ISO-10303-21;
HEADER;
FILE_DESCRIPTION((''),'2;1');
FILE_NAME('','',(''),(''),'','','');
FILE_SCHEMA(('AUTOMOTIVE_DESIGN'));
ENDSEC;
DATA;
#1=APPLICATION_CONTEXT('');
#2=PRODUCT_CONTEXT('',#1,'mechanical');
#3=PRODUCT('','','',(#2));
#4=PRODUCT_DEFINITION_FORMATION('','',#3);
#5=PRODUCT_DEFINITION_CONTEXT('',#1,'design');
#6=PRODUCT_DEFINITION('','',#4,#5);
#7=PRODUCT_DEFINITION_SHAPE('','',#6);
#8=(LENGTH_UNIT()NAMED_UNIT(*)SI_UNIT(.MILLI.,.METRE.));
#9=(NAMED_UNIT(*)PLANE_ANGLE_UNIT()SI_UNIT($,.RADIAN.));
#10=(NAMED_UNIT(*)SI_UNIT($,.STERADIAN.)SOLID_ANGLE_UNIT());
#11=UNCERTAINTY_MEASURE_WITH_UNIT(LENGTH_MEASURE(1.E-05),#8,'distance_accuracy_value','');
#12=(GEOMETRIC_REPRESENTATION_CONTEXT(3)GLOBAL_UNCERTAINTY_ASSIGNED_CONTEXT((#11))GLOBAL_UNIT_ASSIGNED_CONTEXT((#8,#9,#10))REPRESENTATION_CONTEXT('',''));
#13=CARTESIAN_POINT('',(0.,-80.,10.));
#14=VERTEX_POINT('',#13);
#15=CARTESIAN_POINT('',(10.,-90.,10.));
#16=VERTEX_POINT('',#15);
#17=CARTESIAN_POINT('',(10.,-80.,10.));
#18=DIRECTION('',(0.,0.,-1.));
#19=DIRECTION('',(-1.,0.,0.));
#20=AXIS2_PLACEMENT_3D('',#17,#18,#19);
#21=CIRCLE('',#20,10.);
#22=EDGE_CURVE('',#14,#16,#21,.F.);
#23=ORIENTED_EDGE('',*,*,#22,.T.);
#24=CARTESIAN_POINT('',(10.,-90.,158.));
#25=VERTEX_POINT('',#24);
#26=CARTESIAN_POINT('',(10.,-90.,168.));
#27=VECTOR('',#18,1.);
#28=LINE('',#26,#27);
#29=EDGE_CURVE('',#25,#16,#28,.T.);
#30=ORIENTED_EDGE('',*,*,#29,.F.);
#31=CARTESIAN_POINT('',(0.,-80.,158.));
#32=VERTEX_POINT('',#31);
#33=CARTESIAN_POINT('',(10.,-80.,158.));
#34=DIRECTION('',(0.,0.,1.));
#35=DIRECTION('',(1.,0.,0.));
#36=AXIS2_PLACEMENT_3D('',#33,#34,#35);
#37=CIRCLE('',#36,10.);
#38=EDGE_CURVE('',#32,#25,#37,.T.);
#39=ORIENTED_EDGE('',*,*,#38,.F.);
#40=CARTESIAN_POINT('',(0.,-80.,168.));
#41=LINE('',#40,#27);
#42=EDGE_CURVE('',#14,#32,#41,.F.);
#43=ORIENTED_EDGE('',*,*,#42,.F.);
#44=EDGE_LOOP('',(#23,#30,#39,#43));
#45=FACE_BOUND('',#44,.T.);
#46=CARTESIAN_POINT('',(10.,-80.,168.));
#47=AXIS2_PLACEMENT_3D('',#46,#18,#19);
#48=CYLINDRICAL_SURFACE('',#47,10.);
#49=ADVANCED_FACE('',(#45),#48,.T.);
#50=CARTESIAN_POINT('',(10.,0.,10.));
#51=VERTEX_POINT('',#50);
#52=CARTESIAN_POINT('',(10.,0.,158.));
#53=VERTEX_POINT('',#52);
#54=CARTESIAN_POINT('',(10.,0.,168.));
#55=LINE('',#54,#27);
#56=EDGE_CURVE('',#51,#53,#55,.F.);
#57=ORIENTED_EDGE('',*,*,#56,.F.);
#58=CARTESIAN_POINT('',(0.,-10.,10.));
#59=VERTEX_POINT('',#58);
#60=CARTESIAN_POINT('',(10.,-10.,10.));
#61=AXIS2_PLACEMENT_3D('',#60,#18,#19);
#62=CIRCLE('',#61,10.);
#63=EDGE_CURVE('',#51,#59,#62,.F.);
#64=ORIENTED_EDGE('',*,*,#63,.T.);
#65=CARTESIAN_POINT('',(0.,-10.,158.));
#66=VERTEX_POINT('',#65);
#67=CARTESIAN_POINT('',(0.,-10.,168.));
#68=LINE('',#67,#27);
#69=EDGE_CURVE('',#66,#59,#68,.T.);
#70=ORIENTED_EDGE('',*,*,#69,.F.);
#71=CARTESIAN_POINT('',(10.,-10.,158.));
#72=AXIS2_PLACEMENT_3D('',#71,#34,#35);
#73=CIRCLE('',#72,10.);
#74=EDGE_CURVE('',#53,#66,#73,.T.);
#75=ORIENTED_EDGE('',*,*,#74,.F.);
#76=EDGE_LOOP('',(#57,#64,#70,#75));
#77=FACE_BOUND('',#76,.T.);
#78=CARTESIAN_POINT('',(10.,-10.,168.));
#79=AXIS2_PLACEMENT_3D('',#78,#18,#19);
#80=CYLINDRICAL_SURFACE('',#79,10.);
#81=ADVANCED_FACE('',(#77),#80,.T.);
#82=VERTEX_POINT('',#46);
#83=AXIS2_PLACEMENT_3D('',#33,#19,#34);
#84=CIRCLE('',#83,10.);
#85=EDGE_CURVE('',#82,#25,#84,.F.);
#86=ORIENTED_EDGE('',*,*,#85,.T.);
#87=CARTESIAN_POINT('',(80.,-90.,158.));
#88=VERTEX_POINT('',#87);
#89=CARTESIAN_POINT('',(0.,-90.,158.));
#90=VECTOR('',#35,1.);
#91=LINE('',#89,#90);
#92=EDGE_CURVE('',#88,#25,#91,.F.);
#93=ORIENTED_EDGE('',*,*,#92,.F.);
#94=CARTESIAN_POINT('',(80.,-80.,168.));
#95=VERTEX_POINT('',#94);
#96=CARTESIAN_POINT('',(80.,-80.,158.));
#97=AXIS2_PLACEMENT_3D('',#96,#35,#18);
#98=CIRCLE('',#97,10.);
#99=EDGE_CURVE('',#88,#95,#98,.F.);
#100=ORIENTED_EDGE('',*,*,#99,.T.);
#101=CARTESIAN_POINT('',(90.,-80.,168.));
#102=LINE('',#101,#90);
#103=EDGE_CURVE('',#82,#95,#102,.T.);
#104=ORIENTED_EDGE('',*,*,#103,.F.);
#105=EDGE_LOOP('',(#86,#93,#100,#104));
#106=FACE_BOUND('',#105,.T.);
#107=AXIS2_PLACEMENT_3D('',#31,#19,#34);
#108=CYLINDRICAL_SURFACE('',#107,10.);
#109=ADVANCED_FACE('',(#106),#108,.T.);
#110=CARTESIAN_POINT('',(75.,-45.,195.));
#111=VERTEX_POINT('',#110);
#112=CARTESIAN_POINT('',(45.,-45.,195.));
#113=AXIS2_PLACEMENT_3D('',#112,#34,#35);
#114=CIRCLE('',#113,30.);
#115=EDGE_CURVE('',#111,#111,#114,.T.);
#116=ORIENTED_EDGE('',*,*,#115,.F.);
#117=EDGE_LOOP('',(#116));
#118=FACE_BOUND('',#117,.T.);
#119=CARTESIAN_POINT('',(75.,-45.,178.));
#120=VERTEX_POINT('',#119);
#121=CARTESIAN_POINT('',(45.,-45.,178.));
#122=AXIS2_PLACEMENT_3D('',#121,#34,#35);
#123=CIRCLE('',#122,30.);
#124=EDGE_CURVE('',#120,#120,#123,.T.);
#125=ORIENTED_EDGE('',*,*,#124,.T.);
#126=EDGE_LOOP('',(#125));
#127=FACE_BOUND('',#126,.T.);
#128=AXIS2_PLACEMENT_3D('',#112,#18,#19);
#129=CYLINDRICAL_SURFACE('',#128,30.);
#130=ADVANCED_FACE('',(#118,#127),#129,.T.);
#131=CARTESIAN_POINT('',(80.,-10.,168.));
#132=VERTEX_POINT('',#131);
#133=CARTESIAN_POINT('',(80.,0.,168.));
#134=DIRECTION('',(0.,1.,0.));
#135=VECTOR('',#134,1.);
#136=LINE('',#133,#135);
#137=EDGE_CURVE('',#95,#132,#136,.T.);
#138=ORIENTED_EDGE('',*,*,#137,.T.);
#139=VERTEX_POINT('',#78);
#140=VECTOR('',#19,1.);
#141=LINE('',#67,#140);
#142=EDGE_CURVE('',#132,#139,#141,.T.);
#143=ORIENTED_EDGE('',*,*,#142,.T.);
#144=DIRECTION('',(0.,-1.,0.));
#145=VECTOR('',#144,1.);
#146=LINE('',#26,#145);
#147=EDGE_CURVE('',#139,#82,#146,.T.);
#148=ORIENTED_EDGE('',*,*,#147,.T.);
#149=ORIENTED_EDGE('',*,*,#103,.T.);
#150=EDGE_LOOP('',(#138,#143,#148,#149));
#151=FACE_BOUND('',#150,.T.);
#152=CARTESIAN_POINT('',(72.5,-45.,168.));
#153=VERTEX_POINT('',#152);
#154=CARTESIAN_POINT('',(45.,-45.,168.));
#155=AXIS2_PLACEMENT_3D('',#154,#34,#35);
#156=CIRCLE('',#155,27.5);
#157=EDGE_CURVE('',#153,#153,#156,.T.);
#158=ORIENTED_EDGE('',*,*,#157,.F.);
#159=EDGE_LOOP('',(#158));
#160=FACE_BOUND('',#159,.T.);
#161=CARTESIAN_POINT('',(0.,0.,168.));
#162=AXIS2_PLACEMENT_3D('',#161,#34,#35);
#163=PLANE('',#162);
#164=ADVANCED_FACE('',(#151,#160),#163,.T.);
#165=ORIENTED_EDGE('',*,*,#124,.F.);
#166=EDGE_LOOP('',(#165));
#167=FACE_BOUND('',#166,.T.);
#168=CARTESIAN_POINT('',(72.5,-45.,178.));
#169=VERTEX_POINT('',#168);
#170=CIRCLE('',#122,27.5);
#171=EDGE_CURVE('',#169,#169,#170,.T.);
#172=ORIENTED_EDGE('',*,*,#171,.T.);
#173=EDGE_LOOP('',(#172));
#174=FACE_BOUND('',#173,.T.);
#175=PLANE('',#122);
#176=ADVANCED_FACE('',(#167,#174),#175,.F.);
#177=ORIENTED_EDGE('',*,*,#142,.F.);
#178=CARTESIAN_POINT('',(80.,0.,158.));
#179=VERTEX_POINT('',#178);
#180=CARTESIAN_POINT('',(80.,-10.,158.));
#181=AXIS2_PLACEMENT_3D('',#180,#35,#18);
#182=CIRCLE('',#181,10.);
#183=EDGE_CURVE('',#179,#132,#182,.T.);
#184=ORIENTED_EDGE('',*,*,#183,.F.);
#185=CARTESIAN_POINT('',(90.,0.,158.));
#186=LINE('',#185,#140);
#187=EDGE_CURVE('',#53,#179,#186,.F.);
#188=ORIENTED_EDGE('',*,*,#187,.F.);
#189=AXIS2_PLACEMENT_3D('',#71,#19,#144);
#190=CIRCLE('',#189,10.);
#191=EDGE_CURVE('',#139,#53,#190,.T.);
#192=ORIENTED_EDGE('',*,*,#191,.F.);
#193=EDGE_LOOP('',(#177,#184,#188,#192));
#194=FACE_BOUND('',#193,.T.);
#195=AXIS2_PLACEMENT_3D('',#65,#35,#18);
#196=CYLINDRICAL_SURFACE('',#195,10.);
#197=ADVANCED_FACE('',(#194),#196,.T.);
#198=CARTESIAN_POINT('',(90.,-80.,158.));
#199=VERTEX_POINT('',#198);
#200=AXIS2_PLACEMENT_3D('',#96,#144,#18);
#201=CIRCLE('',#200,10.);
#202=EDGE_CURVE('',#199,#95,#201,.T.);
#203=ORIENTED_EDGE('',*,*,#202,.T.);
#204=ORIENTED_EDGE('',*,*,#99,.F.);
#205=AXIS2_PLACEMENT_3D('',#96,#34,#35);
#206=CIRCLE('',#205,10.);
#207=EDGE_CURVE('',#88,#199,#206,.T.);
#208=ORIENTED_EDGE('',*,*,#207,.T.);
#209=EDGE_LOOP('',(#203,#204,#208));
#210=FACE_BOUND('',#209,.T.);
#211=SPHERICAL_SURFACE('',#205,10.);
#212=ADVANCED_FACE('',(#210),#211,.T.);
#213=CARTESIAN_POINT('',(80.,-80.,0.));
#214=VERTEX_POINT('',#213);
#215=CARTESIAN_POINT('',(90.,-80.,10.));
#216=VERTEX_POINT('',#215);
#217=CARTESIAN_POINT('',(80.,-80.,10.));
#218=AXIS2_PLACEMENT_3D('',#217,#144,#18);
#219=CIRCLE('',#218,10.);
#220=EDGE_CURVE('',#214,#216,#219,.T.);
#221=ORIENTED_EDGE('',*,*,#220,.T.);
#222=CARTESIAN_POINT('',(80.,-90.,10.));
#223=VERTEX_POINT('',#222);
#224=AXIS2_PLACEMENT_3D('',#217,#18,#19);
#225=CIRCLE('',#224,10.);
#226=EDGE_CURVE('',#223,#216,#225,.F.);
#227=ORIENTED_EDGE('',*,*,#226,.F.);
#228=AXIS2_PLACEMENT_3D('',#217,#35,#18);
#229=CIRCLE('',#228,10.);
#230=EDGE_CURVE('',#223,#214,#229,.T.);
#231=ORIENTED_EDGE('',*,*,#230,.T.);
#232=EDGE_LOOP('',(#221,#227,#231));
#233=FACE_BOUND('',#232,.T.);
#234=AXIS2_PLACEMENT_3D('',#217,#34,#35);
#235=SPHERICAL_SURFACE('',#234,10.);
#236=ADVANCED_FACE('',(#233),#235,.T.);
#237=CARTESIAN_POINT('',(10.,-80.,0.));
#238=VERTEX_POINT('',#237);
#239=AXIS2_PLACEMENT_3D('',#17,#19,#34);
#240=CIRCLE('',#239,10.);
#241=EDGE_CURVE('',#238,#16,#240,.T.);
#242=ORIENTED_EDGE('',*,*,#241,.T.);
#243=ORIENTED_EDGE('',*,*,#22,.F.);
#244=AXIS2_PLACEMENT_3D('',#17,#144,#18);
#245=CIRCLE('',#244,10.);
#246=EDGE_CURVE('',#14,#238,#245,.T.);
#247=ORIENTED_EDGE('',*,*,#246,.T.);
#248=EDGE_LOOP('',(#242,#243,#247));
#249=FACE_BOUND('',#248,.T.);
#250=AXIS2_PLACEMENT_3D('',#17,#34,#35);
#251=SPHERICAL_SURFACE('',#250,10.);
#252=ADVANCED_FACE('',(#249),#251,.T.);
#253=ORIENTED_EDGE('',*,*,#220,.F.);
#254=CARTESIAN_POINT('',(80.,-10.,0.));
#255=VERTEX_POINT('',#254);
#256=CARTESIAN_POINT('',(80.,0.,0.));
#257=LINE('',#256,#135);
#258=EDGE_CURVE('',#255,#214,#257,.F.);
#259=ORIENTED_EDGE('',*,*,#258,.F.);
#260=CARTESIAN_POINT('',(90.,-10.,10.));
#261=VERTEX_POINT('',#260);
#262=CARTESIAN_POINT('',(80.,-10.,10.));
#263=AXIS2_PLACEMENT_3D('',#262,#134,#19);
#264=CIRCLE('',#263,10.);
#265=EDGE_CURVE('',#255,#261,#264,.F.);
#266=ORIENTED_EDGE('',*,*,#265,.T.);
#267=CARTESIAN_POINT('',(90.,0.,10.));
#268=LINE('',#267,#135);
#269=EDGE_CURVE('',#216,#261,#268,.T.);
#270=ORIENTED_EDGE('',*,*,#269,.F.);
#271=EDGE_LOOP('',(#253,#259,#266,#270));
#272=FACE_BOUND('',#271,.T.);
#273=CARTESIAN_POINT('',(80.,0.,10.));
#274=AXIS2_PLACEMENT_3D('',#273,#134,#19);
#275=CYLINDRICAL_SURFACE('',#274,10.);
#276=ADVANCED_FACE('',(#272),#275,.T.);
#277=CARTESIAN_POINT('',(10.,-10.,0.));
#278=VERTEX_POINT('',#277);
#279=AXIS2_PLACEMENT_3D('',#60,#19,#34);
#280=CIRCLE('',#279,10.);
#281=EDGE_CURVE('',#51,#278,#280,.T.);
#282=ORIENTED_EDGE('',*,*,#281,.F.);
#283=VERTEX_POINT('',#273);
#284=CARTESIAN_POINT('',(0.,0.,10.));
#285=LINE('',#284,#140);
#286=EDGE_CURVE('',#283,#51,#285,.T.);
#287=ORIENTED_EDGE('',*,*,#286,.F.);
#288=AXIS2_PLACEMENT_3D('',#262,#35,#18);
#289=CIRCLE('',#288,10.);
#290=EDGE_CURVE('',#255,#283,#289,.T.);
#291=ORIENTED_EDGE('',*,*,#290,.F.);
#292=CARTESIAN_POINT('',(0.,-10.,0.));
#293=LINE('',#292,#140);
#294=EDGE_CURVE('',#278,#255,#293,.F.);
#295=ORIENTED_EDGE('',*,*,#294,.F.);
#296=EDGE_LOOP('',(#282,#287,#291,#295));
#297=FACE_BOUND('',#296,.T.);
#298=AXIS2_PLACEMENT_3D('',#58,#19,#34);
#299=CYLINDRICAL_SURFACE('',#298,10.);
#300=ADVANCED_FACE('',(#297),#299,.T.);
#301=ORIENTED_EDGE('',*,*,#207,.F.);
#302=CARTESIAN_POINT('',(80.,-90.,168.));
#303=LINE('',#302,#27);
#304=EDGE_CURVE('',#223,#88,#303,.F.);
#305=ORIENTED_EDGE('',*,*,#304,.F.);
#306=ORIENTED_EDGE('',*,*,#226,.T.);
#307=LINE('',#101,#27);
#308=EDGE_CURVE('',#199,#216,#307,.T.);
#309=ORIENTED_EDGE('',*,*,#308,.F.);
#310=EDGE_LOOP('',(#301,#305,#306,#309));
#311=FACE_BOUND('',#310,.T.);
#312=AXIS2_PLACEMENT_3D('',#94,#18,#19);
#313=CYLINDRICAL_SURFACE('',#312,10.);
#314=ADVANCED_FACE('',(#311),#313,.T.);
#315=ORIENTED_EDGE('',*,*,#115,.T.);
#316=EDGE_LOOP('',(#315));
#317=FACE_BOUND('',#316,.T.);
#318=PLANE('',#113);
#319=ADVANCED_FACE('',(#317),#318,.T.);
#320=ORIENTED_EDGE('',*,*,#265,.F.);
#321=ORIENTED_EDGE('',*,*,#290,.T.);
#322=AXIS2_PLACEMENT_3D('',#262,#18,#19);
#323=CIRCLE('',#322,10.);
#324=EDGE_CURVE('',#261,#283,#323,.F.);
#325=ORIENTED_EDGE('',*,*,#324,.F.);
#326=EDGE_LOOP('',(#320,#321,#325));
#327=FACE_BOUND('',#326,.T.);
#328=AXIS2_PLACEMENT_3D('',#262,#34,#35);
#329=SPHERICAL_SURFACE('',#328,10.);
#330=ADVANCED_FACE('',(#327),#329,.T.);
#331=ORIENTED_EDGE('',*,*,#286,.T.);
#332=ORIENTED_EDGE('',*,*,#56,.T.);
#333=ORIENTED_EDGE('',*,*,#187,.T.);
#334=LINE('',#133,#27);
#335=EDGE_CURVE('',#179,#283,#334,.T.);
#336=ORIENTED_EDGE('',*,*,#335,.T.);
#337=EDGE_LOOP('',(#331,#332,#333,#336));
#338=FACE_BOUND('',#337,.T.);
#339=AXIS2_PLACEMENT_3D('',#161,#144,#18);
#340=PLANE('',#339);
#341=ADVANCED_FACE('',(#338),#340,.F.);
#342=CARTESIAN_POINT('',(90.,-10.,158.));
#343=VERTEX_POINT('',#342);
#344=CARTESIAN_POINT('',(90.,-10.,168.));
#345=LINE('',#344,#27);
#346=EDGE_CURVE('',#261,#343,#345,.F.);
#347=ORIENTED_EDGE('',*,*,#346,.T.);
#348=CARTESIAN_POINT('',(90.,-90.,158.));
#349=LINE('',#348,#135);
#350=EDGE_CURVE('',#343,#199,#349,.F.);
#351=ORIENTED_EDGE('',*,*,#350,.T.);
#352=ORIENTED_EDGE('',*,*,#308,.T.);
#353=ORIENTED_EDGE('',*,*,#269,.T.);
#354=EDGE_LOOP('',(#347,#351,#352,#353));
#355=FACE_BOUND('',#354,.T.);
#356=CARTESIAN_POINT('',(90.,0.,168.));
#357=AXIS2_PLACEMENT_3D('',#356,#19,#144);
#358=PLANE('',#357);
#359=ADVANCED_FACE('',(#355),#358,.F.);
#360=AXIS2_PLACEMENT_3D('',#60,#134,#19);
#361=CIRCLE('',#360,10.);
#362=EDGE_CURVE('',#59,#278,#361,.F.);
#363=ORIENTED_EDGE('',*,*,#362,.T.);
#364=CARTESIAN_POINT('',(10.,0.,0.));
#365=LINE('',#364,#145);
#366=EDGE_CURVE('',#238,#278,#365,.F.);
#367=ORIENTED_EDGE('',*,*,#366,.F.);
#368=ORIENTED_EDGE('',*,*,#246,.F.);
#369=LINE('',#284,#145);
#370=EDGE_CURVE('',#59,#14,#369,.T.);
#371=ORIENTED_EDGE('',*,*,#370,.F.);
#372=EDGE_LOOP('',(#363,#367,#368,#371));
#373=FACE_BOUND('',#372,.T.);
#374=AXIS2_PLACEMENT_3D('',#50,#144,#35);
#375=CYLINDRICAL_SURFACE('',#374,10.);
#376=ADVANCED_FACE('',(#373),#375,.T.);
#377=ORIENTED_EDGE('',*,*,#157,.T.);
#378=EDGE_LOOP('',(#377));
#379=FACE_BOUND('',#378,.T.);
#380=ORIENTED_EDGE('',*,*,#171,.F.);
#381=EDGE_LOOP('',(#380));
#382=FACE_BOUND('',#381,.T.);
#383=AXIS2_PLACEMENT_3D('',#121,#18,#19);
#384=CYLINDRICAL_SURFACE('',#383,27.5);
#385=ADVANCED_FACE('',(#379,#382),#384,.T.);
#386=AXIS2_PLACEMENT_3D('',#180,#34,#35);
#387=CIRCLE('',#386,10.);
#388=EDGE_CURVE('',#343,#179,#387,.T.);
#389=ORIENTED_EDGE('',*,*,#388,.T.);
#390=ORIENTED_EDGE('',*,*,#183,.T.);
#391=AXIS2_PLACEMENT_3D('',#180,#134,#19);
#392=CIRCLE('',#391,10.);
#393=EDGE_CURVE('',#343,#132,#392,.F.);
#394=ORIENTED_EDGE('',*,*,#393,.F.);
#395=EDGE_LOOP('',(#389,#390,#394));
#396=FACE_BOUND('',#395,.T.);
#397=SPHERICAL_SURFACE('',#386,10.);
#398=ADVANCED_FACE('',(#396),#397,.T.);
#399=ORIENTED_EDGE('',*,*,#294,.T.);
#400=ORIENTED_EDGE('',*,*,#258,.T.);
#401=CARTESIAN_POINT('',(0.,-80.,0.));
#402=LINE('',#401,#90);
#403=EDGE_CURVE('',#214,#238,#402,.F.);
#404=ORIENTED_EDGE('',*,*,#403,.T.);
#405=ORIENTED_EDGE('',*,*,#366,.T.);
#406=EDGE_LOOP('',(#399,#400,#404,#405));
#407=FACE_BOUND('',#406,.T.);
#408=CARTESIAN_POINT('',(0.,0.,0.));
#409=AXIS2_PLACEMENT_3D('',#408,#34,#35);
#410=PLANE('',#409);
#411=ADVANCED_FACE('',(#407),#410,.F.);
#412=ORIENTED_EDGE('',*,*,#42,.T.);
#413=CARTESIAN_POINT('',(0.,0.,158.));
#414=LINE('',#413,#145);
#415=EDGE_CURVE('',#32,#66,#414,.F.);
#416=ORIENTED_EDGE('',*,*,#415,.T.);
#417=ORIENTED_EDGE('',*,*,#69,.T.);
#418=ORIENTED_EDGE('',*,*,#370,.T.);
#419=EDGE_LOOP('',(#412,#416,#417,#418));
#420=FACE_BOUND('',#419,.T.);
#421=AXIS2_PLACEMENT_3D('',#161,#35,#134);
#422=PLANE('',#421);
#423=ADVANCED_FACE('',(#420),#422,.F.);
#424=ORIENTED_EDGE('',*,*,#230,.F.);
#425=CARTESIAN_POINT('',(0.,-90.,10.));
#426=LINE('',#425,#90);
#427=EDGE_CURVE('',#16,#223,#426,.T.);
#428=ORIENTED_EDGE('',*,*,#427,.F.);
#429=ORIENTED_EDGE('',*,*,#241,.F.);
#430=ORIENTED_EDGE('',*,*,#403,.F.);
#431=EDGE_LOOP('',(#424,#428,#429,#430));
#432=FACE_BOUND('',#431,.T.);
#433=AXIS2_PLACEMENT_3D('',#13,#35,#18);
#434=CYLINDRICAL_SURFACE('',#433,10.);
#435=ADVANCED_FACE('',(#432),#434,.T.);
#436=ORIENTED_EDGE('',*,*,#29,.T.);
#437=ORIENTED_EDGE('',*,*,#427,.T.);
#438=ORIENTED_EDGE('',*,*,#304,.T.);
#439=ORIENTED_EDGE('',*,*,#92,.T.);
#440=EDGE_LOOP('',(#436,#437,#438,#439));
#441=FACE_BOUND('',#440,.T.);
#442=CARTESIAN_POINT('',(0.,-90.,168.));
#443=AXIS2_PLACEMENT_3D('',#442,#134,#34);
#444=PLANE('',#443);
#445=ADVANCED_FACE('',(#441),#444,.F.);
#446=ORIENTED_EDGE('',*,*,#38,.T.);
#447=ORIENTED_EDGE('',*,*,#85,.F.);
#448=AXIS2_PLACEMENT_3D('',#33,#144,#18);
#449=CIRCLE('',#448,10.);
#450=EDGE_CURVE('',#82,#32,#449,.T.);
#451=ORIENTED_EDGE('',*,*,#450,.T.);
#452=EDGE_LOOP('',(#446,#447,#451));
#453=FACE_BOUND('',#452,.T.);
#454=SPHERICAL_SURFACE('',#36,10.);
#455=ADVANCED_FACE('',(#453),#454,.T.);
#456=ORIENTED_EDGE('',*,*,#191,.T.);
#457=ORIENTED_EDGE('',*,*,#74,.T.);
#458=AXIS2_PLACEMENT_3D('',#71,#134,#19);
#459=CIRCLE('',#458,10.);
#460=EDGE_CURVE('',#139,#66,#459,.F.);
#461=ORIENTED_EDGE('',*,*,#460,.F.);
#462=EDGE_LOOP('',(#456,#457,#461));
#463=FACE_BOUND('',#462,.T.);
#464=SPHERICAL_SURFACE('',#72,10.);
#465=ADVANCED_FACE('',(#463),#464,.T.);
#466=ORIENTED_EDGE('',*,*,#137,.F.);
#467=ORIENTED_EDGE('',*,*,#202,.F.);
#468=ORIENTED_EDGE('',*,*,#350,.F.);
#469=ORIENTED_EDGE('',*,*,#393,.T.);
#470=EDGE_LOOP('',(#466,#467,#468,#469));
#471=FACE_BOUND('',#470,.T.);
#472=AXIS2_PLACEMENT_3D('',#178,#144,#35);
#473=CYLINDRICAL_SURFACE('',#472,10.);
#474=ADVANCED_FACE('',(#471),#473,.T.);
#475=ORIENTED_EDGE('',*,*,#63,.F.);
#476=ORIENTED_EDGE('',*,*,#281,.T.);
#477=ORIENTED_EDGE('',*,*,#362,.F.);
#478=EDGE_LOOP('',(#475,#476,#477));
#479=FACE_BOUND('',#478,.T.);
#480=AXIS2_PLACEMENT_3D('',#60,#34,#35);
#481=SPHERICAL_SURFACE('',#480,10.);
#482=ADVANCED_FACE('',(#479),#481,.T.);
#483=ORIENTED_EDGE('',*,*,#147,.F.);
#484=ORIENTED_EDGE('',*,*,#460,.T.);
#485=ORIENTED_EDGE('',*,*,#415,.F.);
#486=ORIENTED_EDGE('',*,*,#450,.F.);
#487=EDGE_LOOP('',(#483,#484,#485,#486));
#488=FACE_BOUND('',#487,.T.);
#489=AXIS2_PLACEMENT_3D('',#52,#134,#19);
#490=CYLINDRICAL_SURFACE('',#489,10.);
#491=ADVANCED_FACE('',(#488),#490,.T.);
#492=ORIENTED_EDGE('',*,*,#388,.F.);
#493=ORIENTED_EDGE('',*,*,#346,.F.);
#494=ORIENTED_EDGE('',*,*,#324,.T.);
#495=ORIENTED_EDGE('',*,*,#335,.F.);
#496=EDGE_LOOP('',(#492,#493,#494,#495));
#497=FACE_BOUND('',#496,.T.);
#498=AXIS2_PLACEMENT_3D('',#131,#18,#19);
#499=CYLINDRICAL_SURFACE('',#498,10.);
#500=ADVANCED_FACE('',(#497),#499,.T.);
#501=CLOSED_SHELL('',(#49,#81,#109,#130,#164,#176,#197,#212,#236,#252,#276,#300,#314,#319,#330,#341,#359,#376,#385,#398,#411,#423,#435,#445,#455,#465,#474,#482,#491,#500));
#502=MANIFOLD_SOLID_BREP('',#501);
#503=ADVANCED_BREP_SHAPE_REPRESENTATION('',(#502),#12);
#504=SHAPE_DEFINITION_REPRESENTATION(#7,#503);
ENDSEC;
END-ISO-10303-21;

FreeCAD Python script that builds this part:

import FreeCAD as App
import Part
import Sketcher

V = App.Vector
Q = App.Units.Quantity

doc = App.newDocument("Part")
params = doc.addObject("Spreadsheet::Sheet", "Params")
for row, (alias, value) in enumerate([
    ("sketch1_width", "90 mm"),
    ("pad1_length", "168 mm"),
    ("fillet_radius", "10 mm"),
    ("sketch2_diameter", "55 mm"),
    ("pad2_length", "10 mm"),
    ("sketch3_diameter", "60 mm"),
    ("pad3_length", "17 mm"),
], start=1):
    params.set(f"A{row}", alias)
    params.set(f"B{row}", "=" + value)
    params.setAlias(f"B{row}", alias)

body = doc.addObject("PartDesign::Body", "Body")

sketch1 = body.newObject("Sketcher::SketchObject", "Sketch")
sketch1.AttachmentSupport = (doc.getObject("XY_Plane"), [""])
sketch1.MapMode = "FlatFace"
sketch1.addGeometry(Part.LineSegment(V(0, 0, 0), V(0, -90, 0)), False)
sketch1.addGeometry(Part.LineSegment(V(0, -90, 0), V(90, -90, 0)), False)
sketch1.addGeometry(Part.LineSegment(V(90, -90, 0), V(90, 0, 0)), False)
sketch1.addGeometry(Part.LineSegment(V(90, 0, 0), V(0, 0, 0)), False)
sketch1.addConstraint(Sketcher.Constraint("Coincident", 0, 2, 1, 1))
sketch1.addConstraint(Sketcher.Constraint("Coincident", 1, 2, 2, 1))
sketch1.addConstraint(Sketcher.Constraint("Coincident", 2, 2, 3, 1))
sketch1.addConstraint(Sketcher.Constraint("Coincident", 3, 2, 0, 1))
sketch1.addConstraint(Sketcher.Constraint("Vertical", 0))
sketch1.addConstraint(Sketcher.Constraint("Horizontal", 1))
sketch1.addConstraint(Sketcher.Constraint("Vertical", 2))
sketch1.addConstraint(Sketcher.Constraint("Horizontal", 3))
sketch1.addConstraint(Sketcher.Constraint("Coincident", 3, 2, -1, 1))
sketch1.addConstraint(Sketcher.Constraint("Equal", 3, 0))
sketch1.addConstraint(Sketcher.Constraint("DistanceX", 1, 1, 1, 2, Q("90 mm")))
sketch1.setExpression("Constraints[10]", "Params.sketch1_width")
pad1 = body.newObject("PartDesign::Pad", "Pad")
pad1.Profile = sketch1
pad1.setExpression("Length", "Params.pad1_length")
doc.recompute()

fillet = body.newObject("PartDesign::Fillet", "Fillet")
fillet.Base = (pad1, ["Edge1"])
fillet.UseAllEdges = True
fillet.setExpression("Radius", "Params.fillet_radius")

sketch2 = body.newObject("Sketcher::SketchObject", "Sketch001")
sketch2.AttachmentSupport = (doc.getObject("XY_Plane"), [""])
sketch2.MapMode = "FlatFace"
sketch2.AttachmentOffset = App.Placement(V(0, 0, 168), App.Rotation())
sketch2.addGeometry(Part.Circle(V(45, -45, 0), V(0, 0, 1), 27.5), False)
sketch2.addConstraint(Sketcher.Constraint("Diameter", 0, Q("55 mm")))
sketch2.addConstraint(Sketcher.Constraint("DistanceX", -1, 1, 0, 3, Q("45 mm")))
sketch2.addConstraint(Sketcher.Constraint("DistanceY", 0, 3, -1, 1, Q("45 mm")))
sketch2.setExpression("Constraints[0]", "Params.sketch2_diameter")
pad2 = body.newObject("PartDesign::Pad", "Pad001")
pad2.Profile = sketch2
pad2.setExpression("Length", "Params.pad2_length")

sketch3 = body.newObject("Sketcher::SketchObject", "Sketch002")
sketch3.AttachmentSupport = (doc.getObject("XY_Plane"), [""])
sketch3.MapMode = "FlatFace"
sketch3.AttachmentOffset = App.Placement(V(0, 0, 178), App.Rotation())
sketch3.addGeometry(Part.Circle(V(45, -45, 0), V(0, 0, 1), 30), False)
sketch3.addConstraint(Sketcher.Constraint("Diameter", 0, Q("60 mm")))
sketch3.addConstraint(Sketcher.Constraint("DistanceX", -1, 1, 0, 3, Q("45 mm")))
sketch3.addConstraint(Sketcher.Constraint("DistanceY", 0, 3, -1, 1, Q("45 mm")))
sketch3.setExpression("Constraints[0]", "Params.sketch3_diameter")
pad3 = body.newObject("PartDesign::Pad", "Pad002")
pad3.Profile = sketch3
pad3.setExpression("Length", "Params.pad3_length")

doc.recompute()
